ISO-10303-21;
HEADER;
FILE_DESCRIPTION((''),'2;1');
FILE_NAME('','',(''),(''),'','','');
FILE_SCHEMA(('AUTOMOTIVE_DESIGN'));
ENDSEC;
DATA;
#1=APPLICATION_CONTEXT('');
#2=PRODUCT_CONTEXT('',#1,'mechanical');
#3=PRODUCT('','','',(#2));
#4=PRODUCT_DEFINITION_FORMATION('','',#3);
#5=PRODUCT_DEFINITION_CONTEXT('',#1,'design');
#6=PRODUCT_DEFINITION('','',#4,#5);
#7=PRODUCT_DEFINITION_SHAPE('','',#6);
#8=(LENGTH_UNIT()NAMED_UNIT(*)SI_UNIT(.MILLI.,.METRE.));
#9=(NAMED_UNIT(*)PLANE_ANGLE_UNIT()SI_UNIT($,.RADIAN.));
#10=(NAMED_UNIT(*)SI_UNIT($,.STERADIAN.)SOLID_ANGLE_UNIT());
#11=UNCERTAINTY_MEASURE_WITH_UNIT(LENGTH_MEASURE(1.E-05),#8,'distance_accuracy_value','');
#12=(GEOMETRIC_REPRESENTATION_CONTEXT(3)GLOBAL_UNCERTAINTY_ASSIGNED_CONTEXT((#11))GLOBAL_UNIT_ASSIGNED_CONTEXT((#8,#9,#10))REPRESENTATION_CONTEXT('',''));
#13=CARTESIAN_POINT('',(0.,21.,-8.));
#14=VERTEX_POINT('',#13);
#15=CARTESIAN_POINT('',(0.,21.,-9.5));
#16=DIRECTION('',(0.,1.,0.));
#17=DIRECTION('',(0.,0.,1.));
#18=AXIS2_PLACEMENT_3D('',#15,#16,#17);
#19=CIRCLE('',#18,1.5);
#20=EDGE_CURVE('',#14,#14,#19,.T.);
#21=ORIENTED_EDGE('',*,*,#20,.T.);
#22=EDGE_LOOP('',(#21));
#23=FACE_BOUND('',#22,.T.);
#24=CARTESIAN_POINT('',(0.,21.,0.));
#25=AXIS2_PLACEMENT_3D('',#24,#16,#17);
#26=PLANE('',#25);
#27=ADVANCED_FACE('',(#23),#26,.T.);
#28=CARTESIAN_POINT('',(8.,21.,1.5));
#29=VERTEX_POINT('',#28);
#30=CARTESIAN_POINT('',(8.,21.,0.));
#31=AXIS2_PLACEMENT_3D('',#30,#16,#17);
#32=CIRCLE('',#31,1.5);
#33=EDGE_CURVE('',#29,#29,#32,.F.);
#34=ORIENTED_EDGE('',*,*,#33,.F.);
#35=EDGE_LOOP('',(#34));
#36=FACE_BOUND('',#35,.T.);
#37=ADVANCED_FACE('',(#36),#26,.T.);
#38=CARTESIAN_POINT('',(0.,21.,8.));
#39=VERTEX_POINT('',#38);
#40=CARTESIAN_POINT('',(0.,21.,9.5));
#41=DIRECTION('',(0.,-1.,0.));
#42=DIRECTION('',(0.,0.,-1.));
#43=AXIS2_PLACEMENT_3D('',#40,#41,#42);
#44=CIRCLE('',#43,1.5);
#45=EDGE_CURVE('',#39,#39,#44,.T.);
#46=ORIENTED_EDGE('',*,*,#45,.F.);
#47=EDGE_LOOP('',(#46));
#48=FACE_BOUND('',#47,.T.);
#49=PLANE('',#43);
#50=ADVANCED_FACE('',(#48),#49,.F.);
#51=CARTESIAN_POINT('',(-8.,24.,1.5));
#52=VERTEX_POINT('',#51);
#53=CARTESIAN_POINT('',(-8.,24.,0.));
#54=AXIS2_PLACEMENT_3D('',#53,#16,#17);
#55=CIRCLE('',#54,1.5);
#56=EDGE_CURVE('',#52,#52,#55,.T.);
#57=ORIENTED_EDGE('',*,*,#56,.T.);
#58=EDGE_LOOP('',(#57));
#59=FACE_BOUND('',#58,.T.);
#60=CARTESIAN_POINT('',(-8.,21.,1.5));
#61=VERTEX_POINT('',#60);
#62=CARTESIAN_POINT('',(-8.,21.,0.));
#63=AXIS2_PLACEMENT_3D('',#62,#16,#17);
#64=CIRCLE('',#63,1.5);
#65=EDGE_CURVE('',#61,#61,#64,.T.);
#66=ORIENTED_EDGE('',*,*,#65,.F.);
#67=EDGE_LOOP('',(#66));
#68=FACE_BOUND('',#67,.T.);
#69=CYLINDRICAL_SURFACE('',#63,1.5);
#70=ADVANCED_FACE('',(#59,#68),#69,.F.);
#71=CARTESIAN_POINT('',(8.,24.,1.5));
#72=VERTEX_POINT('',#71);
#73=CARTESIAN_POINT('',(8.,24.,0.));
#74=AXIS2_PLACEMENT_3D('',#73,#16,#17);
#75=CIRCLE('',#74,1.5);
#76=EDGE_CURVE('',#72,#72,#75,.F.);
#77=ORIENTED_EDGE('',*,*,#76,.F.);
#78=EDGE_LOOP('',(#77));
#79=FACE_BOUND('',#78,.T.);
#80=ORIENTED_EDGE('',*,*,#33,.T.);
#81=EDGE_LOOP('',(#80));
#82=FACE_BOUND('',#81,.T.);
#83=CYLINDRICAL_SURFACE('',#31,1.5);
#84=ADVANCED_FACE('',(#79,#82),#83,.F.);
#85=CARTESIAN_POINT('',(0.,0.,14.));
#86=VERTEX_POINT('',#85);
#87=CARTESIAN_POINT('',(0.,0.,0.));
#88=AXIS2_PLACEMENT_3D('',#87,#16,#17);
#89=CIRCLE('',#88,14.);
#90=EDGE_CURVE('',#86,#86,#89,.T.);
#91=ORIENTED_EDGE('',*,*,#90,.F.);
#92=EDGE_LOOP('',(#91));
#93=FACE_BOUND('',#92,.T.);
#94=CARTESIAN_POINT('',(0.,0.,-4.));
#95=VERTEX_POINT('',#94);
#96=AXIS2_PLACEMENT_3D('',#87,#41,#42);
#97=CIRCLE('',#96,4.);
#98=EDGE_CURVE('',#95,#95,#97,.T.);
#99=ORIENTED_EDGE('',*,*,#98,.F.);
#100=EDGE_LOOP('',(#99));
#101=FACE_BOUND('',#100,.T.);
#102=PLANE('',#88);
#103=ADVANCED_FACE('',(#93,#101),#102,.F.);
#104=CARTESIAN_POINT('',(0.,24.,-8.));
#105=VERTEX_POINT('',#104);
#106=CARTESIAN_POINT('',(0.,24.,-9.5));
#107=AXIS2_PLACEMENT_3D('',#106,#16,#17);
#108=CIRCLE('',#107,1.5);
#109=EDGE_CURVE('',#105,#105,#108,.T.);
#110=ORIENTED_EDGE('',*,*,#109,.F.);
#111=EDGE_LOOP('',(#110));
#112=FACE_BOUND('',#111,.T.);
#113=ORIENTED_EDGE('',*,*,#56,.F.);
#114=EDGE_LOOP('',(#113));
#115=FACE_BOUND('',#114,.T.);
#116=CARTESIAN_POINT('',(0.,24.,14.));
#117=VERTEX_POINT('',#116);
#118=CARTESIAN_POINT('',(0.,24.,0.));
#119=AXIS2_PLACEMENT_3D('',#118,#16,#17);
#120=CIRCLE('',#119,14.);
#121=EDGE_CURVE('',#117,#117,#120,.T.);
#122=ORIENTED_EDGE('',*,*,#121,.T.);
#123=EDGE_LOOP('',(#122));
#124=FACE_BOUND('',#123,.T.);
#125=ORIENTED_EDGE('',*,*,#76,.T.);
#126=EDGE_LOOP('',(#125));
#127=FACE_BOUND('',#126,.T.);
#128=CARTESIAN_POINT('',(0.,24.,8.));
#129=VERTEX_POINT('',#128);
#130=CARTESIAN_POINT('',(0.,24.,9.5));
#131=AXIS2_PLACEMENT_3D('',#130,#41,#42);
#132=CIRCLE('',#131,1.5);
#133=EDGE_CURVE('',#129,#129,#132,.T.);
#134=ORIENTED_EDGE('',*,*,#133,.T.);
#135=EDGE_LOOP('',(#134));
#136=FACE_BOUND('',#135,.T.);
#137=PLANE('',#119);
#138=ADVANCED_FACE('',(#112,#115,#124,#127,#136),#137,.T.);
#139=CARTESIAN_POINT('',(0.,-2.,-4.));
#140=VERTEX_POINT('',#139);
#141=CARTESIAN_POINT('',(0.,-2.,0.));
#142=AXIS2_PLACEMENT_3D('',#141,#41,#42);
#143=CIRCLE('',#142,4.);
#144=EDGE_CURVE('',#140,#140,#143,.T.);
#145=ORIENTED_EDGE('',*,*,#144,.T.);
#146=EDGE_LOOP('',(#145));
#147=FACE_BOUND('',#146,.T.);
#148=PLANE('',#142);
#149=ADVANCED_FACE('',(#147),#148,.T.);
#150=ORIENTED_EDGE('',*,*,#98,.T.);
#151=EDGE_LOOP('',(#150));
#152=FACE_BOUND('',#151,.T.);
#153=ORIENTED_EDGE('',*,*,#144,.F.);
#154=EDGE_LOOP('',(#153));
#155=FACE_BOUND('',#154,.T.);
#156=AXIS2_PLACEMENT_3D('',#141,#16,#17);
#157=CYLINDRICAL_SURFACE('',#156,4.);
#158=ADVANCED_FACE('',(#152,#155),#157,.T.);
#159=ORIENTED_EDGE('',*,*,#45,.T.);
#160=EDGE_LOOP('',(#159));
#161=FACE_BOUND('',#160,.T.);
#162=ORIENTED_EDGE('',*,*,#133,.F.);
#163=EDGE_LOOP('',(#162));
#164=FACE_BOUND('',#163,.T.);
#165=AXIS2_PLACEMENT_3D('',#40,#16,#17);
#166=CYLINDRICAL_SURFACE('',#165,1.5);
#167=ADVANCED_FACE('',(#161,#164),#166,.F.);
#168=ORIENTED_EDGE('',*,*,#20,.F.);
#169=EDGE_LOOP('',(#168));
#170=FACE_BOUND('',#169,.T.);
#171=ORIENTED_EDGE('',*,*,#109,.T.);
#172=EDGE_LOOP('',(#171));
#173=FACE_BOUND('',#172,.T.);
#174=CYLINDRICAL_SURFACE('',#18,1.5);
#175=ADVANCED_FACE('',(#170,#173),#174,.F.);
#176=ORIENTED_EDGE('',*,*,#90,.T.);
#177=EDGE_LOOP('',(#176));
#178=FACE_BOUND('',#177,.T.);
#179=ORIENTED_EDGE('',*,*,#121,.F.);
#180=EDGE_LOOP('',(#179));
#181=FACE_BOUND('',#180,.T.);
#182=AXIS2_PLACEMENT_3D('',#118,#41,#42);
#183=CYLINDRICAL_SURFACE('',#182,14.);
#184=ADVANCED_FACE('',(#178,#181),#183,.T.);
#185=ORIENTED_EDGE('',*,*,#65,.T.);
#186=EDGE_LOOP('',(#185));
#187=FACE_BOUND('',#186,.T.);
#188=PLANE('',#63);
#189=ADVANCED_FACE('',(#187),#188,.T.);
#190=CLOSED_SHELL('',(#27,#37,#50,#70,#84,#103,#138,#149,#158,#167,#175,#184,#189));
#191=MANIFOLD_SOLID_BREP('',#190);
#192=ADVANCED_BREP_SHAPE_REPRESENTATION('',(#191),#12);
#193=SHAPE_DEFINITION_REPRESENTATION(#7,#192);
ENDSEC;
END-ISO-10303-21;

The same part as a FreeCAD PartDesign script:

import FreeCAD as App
import Part
import Sketcher

doc = App.newDocument("Part")
body = doc.addObject("PartDesign::Body", "Body")

# Sketch on XZ plane
sketch1 = body.newObject("Sketcher::SketchObject", "Sketch")
sketch1.AttachmentSupport = (doc.getObject("XZ_Plane"), [""])
sketch1.MapMode = "FlatFace"
sketch1.addGeometry(Part.Circle(App.Vector(0, 0, 0), App.Vector(0, 0, 1), 14), False)
sketch1.addConstraint([
    Sketcher.Constraint("Coincident", 0, 3, -1, 1),
    Sketcher.Constraint("Diameter", 0, 28.0),
])
pad1 = body.newObject("PartDesign::Pad", "Pad")
pad1.Profile = sketch1
pad1.Length = 24
pad1.Reversed = True

# Sketch on XZ plane
sketch2 = body.newObject("Sketcher::SketchObject", "Sketch001")
sketch2.AttachmentSupport = (doc.getObject("XZ_Plane"), [""])
sketch2.MapMode = "FlatFace"
sketch2.AttachmentOffset = App.Placement(App.Vector(0, 0, -24), App.Rotation())
sketch2.addGeometry([
    Part.Circle(App.Vector(8, 0, 0), App.Vector(0, 0, 1), 1.5),
    Part.Circle(App.Vector(0, -9.5, 0), App.Vector(0, 0, 1), 1.5),
    Part.Circle(App.Vector(-8, 0, 0), App.Vector(0, 0, 1), 1.5),
    Part.Circle(App.Vector(0, 9.5, 0), App.Vector(0, 0, 1), 1.5),
], False)
sketch2.addConstraint([
    Sketcher.Constraint("Equal", 0, 1),
    Sketcher.Constraint("Equal", 1, 2),
    Sketcher.Constraint("Equal", 2, 3),
    Sketcher.Constraint("Symmetric", 0, 3, 2, 3, -1, 1),
    Sketcher.Constraint("Symmetric", 1, 3, 3, 3, -1, 1),
    Sketcher.Constraint("PointOnObject", 0, 3, -1),
    Sketcher.Constraint("PointOnObject", 1, 3, -2),
    Sketcher.Constraint("Diameter", 0, 3.0),
    Sketcher.Constraint("DistanceX", -1, 1, 0, 3, 8.0),
    Sketcher.Constraint("DistanceY", 1, 3, 3, 3, 19.0),
])
pocket1 = body.newObject("PartDesign::Pocket", "Pocket")
pocket1.Profile = sketch2
pocket1.Length = 3
pocket1.Reversed = True

# Sketch on XZ plane
sketch3 = body.newObject("Sketcher::SketchObject", "Sketch002")
sketch3.AttachmentSupport = (doc.getObject("XZ_Plane"), [""])
sketch3.MapMode = "FlatFace"
sketch3.addGeometry(Part.Circle(App.Vector(0, 0, 0), App.Vector(0, 0, 1), 4), False)
sketch3.addConstraint([
    Sketcher.Constraint("Coincident", 0, 3, -1, 1),
    Sketcher.Constraint("Diameter", 0, 8.0),
])
pad2 = body.newObject("PartDesign::Pad", "Pad001")
pad2.Profile = sketch3
pad2.Length = 2

doc.recompute()
